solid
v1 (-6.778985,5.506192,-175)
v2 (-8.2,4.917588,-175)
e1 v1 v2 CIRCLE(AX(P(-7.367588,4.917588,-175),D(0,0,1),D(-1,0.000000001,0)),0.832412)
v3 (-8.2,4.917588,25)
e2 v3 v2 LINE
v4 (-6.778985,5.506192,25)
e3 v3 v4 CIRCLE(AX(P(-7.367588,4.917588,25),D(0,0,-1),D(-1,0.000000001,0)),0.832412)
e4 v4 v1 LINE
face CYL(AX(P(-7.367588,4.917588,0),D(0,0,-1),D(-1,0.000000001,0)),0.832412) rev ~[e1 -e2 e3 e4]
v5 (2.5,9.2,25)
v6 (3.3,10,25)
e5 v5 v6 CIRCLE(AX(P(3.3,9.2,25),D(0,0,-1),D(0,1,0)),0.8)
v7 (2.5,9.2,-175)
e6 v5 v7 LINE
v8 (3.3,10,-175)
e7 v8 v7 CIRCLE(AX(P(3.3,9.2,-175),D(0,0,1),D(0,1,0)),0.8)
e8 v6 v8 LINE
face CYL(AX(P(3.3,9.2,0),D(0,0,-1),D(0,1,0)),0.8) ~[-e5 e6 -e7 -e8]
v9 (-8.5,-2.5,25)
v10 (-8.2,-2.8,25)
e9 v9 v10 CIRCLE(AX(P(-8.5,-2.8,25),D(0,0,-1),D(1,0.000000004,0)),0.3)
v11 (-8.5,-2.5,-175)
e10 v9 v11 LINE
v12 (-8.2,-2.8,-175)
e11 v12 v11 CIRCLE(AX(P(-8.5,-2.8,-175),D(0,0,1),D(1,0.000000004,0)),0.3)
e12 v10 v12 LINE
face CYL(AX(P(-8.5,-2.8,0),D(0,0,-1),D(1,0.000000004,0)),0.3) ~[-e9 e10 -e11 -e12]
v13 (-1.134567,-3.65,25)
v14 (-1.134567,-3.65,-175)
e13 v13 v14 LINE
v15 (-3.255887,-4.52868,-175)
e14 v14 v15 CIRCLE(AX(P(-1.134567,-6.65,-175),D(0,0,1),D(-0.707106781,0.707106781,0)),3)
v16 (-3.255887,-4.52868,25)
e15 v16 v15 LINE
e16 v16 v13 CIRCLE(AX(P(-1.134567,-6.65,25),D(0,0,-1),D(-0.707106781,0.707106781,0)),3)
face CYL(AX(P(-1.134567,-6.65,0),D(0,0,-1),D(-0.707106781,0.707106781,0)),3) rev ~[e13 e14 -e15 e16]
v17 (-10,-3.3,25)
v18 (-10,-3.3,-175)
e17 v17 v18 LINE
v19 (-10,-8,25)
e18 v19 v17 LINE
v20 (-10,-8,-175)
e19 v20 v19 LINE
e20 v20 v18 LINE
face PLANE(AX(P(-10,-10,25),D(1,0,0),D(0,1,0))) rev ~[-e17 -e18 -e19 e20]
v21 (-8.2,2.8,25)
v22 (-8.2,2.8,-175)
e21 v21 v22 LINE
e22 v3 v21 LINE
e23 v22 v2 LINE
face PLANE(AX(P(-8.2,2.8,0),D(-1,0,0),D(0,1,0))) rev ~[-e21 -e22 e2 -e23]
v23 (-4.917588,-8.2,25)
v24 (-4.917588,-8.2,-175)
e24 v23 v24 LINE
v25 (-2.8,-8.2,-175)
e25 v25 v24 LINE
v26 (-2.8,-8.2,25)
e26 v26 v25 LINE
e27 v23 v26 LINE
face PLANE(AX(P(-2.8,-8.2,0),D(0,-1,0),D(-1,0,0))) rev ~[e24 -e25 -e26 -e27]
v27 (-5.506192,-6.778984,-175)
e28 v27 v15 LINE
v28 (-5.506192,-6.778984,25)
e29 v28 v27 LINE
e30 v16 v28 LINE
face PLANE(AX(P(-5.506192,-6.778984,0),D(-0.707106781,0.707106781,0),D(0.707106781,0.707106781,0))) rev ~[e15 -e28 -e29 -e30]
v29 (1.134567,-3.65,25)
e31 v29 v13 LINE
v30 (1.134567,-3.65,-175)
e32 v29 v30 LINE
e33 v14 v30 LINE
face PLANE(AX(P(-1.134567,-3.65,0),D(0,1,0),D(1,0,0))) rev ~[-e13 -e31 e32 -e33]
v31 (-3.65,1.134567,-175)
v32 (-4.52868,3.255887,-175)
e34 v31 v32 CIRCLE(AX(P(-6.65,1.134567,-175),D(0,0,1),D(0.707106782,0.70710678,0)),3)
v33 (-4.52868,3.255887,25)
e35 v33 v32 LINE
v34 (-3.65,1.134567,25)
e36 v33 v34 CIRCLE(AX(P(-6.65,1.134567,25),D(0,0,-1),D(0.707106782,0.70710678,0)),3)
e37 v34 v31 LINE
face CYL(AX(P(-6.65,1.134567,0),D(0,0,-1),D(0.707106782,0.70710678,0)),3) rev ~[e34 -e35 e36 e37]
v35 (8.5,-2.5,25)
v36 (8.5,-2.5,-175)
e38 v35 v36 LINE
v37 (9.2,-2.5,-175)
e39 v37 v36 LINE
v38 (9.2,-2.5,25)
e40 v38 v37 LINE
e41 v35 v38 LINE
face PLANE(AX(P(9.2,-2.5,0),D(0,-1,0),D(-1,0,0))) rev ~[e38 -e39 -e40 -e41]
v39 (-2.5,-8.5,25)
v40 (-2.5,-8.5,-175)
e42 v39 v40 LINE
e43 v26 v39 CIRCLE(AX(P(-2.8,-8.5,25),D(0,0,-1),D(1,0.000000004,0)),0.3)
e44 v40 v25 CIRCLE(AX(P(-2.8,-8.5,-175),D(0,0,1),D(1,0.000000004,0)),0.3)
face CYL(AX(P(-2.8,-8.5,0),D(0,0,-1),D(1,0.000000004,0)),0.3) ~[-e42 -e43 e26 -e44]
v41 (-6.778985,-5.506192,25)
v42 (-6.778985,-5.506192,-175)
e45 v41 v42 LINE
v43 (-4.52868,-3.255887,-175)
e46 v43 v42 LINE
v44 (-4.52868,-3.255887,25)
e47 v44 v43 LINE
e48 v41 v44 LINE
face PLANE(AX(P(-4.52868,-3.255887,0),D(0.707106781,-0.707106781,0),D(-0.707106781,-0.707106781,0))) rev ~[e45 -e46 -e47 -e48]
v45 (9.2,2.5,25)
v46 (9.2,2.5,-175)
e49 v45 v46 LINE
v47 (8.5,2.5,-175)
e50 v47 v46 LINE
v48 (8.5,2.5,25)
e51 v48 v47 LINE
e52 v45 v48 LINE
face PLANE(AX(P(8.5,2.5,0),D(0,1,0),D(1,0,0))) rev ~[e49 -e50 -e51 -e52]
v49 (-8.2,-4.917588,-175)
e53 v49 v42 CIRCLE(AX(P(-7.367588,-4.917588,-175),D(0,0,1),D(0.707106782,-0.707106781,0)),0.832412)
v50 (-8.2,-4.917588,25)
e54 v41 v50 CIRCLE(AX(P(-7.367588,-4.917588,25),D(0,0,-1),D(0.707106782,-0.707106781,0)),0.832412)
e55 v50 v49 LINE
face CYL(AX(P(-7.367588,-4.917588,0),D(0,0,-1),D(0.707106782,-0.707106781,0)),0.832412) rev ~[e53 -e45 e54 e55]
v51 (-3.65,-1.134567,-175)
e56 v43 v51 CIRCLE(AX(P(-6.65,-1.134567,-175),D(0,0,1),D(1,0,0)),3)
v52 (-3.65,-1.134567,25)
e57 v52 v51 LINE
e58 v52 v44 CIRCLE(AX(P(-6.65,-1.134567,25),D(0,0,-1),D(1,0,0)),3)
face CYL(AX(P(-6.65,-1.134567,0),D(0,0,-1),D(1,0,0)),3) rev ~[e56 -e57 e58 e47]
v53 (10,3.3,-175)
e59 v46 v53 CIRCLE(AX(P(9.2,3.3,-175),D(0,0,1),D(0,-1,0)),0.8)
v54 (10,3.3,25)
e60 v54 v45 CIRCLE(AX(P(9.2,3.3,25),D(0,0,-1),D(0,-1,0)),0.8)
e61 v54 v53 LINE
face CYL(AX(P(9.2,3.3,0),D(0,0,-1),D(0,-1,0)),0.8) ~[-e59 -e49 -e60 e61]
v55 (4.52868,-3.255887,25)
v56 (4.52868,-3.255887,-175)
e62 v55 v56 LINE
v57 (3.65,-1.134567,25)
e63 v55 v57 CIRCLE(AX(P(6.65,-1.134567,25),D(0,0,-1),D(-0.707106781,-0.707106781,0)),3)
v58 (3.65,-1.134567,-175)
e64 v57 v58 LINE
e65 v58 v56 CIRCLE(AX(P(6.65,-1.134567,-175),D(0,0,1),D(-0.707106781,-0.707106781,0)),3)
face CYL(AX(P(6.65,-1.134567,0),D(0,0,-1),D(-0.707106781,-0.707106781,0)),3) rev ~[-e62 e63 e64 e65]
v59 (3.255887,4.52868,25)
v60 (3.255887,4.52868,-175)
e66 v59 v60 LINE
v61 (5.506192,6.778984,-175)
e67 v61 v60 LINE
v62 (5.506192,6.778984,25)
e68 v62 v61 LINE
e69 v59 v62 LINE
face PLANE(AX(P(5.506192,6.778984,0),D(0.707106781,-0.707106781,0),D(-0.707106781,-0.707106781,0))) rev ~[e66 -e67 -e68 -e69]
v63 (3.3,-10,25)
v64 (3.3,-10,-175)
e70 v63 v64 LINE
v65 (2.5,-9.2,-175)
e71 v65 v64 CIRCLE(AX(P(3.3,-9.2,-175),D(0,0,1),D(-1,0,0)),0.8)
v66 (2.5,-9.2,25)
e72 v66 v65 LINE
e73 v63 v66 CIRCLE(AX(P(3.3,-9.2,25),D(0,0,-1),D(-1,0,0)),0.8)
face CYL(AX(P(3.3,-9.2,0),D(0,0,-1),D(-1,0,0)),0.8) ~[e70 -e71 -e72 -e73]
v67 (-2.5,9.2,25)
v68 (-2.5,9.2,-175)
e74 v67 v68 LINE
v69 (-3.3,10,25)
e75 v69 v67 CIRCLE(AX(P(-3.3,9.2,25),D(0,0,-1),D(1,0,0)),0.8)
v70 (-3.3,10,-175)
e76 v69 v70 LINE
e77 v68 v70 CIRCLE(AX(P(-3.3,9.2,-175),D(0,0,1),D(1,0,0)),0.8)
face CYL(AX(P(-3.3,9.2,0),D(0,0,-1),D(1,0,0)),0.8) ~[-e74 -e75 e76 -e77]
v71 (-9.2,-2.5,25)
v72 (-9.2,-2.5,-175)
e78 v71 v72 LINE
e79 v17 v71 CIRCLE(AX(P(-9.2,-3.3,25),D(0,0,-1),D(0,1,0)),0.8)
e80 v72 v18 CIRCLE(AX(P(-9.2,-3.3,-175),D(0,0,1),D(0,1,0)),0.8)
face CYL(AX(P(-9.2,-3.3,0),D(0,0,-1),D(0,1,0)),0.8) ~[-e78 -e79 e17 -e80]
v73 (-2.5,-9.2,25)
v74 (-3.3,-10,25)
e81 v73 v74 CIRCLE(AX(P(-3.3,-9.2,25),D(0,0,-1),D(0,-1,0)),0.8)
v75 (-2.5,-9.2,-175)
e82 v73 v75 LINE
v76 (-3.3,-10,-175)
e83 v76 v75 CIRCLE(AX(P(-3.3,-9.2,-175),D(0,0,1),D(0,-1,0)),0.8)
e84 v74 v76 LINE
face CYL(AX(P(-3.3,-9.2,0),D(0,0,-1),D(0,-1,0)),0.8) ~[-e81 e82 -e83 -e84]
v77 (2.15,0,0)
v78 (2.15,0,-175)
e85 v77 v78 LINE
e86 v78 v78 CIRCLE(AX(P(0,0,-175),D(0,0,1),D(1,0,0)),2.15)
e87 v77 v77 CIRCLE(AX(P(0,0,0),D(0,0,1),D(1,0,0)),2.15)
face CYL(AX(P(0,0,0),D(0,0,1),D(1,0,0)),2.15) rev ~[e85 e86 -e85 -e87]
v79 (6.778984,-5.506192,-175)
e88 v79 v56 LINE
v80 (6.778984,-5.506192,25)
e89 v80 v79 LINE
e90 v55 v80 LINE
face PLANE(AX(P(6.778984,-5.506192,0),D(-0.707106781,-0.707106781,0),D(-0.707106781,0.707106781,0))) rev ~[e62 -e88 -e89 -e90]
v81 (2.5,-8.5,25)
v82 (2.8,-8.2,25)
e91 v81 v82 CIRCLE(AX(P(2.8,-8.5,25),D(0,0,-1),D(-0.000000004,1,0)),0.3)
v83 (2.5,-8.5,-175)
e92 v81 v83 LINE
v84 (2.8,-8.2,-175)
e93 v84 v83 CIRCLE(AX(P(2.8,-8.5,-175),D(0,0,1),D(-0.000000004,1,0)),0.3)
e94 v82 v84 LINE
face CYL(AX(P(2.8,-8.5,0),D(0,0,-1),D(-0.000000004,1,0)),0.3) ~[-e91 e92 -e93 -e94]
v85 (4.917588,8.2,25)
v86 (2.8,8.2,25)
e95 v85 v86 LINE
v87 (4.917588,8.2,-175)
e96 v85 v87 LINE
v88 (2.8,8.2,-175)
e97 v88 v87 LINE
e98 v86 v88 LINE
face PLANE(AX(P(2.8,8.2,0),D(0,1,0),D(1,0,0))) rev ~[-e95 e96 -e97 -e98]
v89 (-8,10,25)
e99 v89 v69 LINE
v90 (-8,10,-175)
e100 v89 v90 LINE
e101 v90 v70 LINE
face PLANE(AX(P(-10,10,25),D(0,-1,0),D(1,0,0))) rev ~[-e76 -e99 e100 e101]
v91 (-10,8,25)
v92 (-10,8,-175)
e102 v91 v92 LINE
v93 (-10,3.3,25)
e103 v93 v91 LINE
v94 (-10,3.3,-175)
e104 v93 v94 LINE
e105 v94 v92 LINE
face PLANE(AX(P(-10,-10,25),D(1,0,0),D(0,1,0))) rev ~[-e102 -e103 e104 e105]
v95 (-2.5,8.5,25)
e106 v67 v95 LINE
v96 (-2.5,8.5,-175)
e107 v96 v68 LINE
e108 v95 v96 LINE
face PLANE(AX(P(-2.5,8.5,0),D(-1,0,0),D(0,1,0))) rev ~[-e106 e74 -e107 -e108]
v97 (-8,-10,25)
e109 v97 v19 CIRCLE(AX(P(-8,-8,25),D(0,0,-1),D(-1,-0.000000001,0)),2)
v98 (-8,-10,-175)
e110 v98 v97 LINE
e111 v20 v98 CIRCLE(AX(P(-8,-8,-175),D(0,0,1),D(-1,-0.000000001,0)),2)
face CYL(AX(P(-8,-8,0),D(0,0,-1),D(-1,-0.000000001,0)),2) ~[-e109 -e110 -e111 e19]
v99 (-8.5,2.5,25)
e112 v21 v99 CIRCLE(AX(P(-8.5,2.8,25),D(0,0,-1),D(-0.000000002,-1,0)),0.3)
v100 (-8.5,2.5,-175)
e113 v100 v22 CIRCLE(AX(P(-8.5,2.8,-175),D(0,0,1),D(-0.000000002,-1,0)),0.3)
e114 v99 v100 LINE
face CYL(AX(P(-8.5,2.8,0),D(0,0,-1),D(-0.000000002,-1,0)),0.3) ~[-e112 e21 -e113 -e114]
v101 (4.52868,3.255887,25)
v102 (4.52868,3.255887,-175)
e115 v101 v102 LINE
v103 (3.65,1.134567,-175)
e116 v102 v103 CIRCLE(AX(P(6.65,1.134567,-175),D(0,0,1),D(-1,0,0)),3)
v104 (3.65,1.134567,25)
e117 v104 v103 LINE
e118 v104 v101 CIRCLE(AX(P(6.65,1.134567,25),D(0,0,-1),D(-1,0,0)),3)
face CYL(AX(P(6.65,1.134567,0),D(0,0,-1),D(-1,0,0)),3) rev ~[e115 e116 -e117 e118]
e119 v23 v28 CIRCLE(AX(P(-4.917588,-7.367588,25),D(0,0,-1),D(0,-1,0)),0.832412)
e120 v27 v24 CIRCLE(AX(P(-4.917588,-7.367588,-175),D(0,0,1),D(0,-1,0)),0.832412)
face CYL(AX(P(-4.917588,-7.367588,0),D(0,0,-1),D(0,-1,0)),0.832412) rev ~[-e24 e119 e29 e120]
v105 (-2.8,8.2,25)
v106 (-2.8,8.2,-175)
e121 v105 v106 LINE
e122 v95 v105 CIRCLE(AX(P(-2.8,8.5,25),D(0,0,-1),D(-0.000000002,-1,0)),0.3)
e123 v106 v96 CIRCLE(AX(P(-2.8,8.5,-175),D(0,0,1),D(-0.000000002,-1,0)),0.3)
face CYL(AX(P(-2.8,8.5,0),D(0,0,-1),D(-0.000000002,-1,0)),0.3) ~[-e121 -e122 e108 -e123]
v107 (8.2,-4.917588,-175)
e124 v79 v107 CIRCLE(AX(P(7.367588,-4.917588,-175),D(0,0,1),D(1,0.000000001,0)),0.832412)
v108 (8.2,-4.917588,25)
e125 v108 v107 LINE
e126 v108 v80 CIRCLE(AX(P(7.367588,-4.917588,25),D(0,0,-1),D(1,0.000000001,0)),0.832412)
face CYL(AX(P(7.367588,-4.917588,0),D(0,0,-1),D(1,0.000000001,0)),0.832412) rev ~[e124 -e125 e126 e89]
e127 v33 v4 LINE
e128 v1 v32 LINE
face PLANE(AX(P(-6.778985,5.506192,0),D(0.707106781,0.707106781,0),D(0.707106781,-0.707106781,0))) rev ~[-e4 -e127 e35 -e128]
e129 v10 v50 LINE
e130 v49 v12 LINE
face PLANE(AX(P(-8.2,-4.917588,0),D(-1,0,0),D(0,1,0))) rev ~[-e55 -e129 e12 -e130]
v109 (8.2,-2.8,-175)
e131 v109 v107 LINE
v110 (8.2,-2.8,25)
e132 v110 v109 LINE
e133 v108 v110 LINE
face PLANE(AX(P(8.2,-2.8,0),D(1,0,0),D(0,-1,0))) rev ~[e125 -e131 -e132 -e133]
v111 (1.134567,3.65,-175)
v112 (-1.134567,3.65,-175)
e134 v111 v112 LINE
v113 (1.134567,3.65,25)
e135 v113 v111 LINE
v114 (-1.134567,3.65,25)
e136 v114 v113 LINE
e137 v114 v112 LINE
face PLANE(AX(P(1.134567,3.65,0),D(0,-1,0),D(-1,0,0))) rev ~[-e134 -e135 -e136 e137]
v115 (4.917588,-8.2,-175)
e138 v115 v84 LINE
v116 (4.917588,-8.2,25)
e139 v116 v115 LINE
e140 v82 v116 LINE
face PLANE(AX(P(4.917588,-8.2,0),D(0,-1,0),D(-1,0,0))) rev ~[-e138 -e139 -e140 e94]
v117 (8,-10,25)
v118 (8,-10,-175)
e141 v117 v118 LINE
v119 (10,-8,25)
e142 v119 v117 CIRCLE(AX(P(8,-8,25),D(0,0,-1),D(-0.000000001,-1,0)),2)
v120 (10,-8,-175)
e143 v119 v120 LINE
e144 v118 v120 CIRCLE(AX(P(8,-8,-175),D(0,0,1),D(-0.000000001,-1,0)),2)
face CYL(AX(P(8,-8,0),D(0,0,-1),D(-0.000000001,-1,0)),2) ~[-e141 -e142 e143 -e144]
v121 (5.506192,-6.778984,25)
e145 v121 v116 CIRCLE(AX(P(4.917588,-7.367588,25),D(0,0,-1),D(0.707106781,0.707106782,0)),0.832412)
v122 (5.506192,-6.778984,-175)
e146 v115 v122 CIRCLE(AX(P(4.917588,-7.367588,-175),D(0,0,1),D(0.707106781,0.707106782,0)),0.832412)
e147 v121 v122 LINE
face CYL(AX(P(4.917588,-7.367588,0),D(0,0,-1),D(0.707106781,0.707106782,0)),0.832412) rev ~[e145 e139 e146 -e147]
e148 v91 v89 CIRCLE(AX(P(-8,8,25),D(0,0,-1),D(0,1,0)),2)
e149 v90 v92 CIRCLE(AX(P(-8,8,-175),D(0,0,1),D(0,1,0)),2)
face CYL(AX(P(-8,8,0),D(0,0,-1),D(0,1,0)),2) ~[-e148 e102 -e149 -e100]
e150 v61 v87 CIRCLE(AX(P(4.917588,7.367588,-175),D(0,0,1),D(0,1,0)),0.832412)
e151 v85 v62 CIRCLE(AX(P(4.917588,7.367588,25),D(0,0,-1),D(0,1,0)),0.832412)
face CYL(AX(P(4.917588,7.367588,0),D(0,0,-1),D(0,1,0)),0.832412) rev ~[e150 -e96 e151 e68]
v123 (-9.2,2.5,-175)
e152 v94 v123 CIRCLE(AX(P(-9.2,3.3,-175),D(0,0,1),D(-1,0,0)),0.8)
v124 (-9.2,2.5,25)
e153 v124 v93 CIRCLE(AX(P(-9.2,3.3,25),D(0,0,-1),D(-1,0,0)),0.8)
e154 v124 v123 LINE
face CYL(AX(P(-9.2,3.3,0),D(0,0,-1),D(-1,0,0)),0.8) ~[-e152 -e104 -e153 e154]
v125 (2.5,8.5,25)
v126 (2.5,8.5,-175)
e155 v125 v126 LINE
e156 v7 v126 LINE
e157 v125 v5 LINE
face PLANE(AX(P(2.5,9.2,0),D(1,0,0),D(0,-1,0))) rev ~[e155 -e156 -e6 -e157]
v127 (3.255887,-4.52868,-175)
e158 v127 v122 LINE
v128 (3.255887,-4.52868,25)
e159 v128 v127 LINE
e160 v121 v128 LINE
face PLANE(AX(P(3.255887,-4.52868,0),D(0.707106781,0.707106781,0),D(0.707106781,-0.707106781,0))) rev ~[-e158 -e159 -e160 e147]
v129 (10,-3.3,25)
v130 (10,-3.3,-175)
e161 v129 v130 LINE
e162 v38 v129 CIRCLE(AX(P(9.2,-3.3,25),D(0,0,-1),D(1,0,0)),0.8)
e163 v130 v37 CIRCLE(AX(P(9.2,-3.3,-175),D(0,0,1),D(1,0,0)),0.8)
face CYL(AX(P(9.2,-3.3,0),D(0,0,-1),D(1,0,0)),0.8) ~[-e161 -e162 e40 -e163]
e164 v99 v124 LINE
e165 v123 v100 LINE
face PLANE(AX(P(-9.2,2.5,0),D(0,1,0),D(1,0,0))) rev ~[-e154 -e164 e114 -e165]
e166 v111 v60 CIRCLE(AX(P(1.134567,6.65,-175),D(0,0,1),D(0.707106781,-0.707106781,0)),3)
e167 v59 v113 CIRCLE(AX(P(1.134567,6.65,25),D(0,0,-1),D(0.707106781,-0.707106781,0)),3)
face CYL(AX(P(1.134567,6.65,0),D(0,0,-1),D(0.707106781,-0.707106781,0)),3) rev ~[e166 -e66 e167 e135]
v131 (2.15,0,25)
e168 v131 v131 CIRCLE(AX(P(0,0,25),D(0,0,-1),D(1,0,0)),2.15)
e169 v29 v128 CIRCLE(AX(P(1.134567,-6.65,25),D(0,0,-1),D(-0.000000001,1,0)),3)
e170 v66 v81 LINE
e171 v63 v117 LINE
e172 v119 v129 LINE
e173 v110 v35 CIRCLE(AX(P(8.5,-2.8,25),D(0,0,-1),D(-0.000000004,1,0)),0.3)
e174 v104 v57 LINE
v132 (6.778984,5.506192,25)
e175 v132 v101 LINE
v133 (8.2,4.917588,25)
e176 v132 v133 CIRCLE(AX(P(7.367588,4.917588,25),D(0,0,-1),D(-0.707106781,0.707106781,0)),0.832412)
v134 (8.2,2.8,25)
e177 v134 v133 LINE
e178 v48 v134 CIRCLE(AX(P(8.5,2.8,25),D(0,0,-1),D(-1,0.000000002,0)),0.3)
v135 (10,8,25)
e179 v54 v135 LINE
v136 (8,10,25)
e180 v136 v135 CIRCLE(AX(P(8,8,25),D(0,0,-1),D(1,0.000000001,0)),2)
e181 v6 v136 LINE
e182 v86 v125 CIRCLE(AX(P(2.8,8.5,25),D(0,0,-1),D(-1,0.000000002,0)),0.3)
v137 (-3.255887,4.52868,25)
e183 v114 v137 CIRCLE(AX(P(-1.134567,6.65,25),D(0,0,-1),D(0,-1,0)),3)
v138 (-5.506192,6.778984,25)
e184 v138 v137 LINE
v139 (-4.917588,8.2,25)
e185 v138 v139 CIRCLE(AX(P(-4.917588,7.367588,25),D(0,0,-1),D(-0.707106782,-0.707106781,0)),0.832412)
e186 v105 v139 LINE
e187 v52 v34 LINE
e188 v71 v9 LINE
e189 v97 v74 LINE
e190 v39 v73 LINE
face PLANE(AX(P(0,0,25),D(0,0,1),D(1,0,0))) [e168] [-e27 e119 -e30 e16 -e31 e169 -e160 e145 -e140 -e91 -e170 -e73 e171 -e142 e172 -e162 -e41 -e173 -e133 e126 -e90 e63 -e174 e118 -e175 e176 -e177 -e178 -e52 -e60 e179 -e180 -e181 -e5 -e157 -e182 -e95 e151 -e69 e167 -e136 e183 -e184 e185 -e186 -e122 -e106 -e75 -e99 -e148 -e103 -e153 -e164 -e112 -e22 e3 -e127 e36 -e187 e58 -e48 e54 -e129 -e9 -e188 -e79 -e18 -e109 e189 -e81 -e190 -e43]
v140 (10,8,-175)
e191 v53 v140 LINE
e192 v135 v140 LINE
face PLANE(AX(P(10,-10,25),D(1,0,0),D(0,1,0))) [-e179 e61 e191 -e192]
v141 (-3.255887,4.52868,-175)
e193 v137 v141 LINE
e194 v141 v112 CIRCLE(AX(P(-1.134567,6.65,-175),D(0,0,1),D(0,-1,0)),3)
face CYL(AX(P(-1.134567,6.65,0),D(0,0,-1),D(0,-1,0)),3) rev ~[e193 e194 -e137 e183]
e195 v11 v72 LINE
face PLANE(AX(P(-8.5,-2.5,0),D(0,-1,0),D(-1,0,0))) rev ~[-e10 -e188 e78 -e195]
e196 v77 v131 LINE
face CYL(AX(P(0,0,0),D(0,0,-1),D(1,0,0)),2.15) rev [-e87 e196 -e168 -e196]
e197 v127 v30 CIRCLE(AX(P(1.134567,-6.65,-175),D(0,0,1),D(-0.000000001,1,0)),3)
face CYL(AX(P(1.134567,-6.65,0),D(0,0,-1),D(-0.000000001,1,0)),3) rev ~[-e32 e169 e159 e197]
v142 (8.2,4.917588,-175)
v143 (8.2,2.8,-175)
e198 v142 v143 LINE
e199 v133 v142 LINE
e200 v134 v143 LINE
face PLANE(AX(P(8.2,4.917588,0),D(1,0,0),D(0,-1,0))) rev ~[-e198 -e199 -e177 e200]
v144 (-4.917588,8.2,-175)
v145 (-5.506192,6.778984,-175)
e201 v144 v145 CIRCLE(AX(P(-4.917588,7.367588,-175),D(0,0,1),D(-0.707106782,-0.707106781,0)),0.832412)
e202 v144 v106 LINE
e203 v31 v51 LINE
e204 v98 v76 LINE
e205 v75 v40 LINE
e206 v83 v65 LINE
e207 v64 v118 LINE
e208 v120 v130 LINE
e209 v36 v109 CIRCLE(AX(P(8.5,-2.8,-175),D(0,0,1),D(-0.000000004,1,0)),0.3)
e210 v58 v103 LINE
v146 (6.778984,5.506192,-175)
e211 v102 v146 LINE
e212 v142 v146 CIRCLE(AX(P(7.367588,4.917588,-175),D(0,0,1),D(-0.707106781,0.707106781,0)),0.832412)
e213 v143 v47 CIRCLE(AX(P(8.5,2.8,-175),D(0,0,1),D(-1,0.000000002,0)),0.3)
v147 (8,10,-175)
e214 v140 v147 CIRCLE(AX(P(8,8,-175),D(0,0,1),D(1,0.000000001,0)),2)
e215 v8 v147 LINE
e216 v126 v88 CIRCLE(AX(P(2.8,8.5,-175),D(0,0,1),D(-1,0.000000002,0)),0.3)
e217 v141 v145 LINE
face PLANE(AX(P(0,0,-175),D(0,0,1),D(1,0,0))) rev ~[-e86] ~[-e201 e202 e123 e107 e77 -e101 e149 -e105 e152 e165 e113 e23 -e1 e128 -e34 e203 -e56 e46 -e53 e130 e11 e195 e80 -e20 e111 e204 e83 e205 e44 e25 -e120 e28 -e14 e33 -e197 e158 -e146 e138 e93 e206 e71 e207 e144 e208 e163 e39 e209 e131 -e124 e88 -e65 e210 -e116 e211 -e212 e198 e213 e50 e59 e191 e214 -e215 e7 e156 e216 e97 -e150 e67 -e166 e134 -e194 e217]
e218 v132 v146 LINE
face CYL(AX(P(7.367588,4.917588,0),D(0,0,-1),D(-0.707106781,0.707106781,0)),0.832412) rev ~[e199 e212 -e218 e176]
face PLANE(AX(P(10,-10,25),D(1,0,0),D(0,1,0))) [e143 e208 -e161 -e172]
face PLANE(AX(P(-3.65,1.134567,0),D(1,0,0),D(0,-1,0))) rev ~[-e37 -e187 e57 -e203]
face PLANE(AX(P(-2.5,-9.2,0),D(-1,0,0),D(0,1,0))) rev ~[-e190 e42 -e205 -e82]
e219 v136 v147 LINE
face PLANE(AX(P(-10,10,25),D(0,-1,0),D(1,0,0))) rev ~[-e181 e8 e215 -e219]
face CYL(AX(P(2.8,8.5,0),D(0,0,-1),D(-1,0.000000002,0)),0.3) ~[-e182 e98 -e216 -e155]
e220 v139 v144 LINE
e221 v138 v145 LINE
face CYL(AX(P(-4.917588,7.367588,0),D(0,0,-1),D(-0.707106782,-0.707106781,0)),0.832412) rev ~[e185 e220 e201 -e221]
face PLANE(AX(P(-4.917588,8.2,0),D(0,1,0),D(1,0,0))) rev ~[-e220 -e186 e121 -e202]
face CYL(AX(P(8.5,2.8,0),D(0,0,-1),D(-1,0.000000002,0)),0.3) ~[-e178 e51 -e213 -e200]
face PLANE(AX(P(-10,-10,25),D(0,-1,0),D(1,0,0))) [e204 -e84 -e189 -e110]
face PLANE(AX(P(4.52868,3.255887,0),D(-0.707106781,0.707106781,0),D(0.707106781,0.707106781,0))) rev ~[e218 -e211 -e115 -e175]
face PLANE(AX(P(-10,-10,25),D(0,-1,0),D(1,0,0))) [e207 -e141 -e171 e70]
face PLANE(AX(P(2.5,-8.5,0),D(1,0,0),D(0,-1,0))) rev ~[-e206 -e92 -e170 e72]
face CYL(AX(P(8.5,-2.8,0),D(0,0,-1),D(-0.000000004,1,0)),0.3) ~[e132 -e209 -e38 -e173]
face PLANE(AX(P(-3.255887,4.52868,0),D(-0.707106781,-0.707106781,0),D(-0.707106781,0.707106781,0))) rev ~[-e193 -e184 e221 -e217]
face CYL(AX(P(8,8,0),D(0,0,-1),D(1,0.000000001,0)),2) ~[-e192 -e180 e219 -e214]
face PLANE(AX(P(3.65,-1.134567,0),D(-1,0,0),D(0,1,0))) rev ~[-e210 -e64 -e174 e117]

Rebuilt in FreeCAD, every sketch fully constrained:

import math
import FreeCAD as App
import Part
import Sketcher
Q = App.Units.Quantity


def add_polygon(sketch, points):
    """Adds a closed chain of lines whose ends are joined by coincident constraints."""
    first, n = sketch.GeometryCount, len(points)
    for a, b in zip(points, points[1:] + points[:1]):
        sketch.addGeometry(Part.LineSegment(App.Vector(*a, 0), App.Vector(*b, 0)), False)
    for i in range(n):
        sketch.addConstraint(Sketcher.Constraint("Coincident", first + i, 2, first + (i + 1) % n, 1))

doc = App.newDocument("Part")
body = doc.addObject("PartDesign::Body", "Body")

# Sketch on XY plane
sketch1 = doc.addObject("Sketcher::SketchObject", "Sketch")
body.addObject(sketch1)
sketch1.AttachmentSupport = (doc.XY_Plane, [""])
sketch1.MapMode = "FlatFace"
sketch1.AttachmentOffset = App.Placement(App.Vector(0, 0, 25), App.Rotation())
add_polygon(sketch1, [(-10, 10), (-10, -10), (10, -10), (10, 10)])  # lines 0-3
sketch1.addConstraint(Sketcher.Constraint("Vertical", 0))
sketch1.addConstraint(Sketcher.Constraint("Horizontal", 1))
sketch1.addConstraint(Sketcher.Constraint("Vertical", 2))
sketch1.addConstraint(Sketcher.Constraint("Horizontal", 3))
sketch1.addConstraint(Sketcher.Constraint("Symmetric", 0, 2, 2, 2, -1, 1))
sketch1.addConstraint(Sketcher.Constraint("Equal", 3, 0))
sketch1.addConstraint(Sketcher.Constraint("DistanceX", 1, 1, 1, 2, Q("20 mm")))
pad1 = doc.addObject("PartDesign::Pad", "Pad")
body.addObject(pad1)
pad1.Profile = sketch1
pad1.Length = 200
pad1.Reversed = True

# Sketch on XY plane
sketch2 = doc.addObject("Sketcher::SketchObject", "Sketch001")
body.addObject(sketch2)
sketch2.AttachmentSupport = (doc.XY_Plane, [""])
sketch2.MapMode = "FlatFace"
add_polygon(sketch2, [(-31.2, 31.2), (-31.2, -31.2), (31.2, -31.2), (31.2, 31.2)])  # lines 0-3
sketch2.addGeometry(Part.LineSegment(App.Vector(2.8, -8.2, 0), App.Vector(4.92, -8.2, 0)), False)  # 4
sketch2.addGeometry(Part.ArcOfCircle(Part.Circle(App.Vector(4.92, -7.37, 0), App.Vector(0, 0, 1), 0.83), math.radians(-90), math.radians(45)), False)  # 5
sketch2.addGeometry(Part.LineSegment(App.Vector(5.51, -6.78, 0), App.Vector(3.26, -4.53, 0)), False)  # 6
sketch2.addGeometry(Part.ArcOfCircle(Part.Circle(App.Vector(1.13, -6.65, 0), App.Vector(0, 0, 1), 3), math.radians(45), math.radians(90)), False)  # 7
sketch2.addGeometry(Part.LineSegment(App.Vector(1.13, -3.65, 0), App.Vector(-1.13, -3.65, 0)), False)  # 8
sketch2.addGeometry(Part.ArcOfCircle(Part.Circle(App.Vector(-1.13, -6.65, 0), App.Vector(0, 0, 1), 3), math.radians(90), math.radians(135)), False)  # 9
sketch2.addGeometry(Part.LineSegment(App.Vector(-3.26, -4.53, 0), App.Vector(-5.51, -6.78, 0)), False)  # 10
sketch2.addGeometry(Part.ArcOfCircle(Part.Circle(App.Vector(-4.92, -7.37, 0), App.Vector(0, 0, 1), 0.83), math.radians(135), math.radians(270)), False)  # 11
sketch2.addGeometry(Part.LineSegment(App.Vector(-4.92, -8.2, 0), App.Vector(-2.8, -8.2, 0)), False)  # 12
sketch2.addGeometry(Part.ArcOfCircle(Part.Circle(App.Vector(-2.8, -8.5, 0), App.Vector(0, 0, 1), 0.3), math.radians(0), math.radians(90)), False)  # 13
sketch2.addGeometry(Part.LineSegment(App.Vector(-2.5, -8.5, 0), App.Vector(-2.5, -9.2, 0)), False)  # 14
sketch2.addGeometry(Part.ArcOfCircle(Part.Circle(App.Vector(-3.3, -9.2, 0), App.Vector(0, 0, 1), 0.8), math.radians(-90), math.radians(0)), False)  # 15
sketch2.addGeometry(Part.LineSegment(App.Vector(-3.3, -10, 0), App.Vector(-8, -10, 0)), False)  # 16
sketch2.addGeometry(Part.ArcOfCircle(Part.Circle(App.Vector(-8, -8, 0), App.Vector(0, 0, 1), 2), math.radians(-180), math.radians(-90)), False)  # 17
sketch2.addGeometry(Part.LineSegment(App.Vector(-10, -8, 0), App.Vector(-10, -3.3, 0)), False)  # 18
sketch2.addGeometry(Part.ArcOfCircle(Part.Circle(App.Vector(-9.2, -3.3, 0), App.Vector(0, 0, 1), 0.8), math.radians(90), math.radians(180)), False)  # 19
sketch2.addGeometry(Part.LineSegment(App.Vector(-9.2, -2.5, 0), App.Vector(-8.5, -2.5, 0)), False)  # 20
sketch2.addGeometry(Part.ArcOfCircle(Part.Circle(App.Vector(-8.5, -2.8, 0), App.Vector(0, 0, 1), 0.3), math.radians(0), math.radians(90)), False)  # 21
sketch2.addGeometry(Part.LineSegment(App.Vector(-8.2, -2.8, 0), App.Vector(-8.2, -4.92, 0)), False)  # 22
sketch2.addGeometry(Part.ArcOfCircle(Part.Circle(App.Vector(-7.37, -4.92, 0), App.Vector(0, 0, 1), 0.83), math.radians(180), math.radians(315)), False)  # 23
sketch2.addGeometry(Part.LineSegment(App.Vector(-6.78, -5.51, 0), App.Vector(-4.53, -3.26, 0)), False)  # 24
sketch2.addGeometry(Part.ArcOfCircle(Part.Circle(App.Vector(-6.65, -1.13, 0), App.Vector(0, 0, 1), 3), math.radians(-45), math.radians(0)), False)  # 25
sketch2.addGeometry(Part.LineSegment(App.Vector(-3.65, -1.13, 0), App.Vector(-3.65, 1.13, 0)), False)  # 26
sketch2.addGeometry(Part.ArcOfCircle(Part.Circle(App.Vector(-6.65, 1.13, 0), App.Vector(0, 0, 1), 3), math.radians(0), math.radians(45)), False)  # 27
sketch2.addGeometry(Part.LineSegment(App.Vector(-4.53, 3.26, 0), App.Vector(-6.78, 5.51, 0)), False)  # 28
sketch2.addGeometry(Part.ArcOfCircle(Part.Circle(App.Vector(-7.37, 4.92, 0), App.Vector(0, 0, 1), 0.83), math.radians(45), math.radians(180)), False)  # 29
sketch2.addGeometry(Part.LineSegment(App.Vector(-8.2, 4.92, 0), App.Vector(-8.2, 2.8, 0)), False)  # 30
sketch2.addGeometry(Part.ArcOfCircle(Part.Circle(App.Vector(-8.5, 2.8, 0), App.Vector(0, 0, 1), 0.3), math.radians(-90), math.radians(0)), False)  # 31
sketch2.addGeometry(Part.LineSegment(App.Vector(-8.5, 2.5, 0), App.Vector(-9.2, 2.5, 0)), False)  # 32
sketch2.addGeometry(Part.ArcOfCircle(Part.Circle(App.Vector(-9.2, 3.3, 0), App.Vector(0, 0, 1), 0.8), math.radians(180), math.radians(270)), False)  # 33
sketch2.addGeometry(Part.LineSegment(App.Vector(-10, 3.3, 0), App.Vector(-10, 8, 0)), False)  # 34
sketch2.addGeometry(Part.ArcOfCircle(Part.Circle(App.Vector(-8, 8, 0), App.Vector(0, 0, 1), 2), math.radians(90), math.radians(180)), False)  # 35
sketch2.addGeometry(Part.LineSegment(App.Vector(-8, 10, 0), App.Vector(-3.3, 10, 0)), False)  # 36
sketch2.addGeometry(Part.ArcOfCircle(Part.Circle(App.Vector(-3.3, 9.2, 0), App.Vector(0, 0, 1), 0.8), math.radians(0), math.radians(90)), False)  # 37
sketch2.addGeometry(Part.LineSegment(App.Vector(-2.5, 9.2, 0), App.Vector(-2.5, 8.5, 0)), False)  # 38
sketch2.addGeometry(Part.ArcOfCircle(Part.Circle(App.Vector(-2.8, 8.5, 0), App.Vector(0, 0, 1), 0.3), math.radians(-90), math.radians(0)), False)  # 39
sketch2.addGeometry(Part.LineSegment(App.Vector(-2.8, 8.2, 0), App.Vector(-4.92, 8.2, 0)), False)  # 40
sketch2.addGeometry(Part.ArcOfCircle(Part.Circle(App.Vector(-4.92, 7.37, 0), App.Vector(0, 0, 1), 0.83), math.radians(90), math.radians(225)), False)  # 41
sketch2.addGeometry(Part.LineSegment(App.Vector(-5.51, 6.78, 0), App.Vector(-3.26, 4.53, 0)), False)  # 42
sketch2.addGeometry(Part.ArcOfCircle(Part.Circle(App.Vector(-1.13, 6.65, 0), App.Vector(0, 0, 1), 3), math.radians(-135), math.radians(-90)), False)  # 43
sketch2.addGeometry(Part.LineSegment(App.Vector(-1.13, 3.65, 0), App.Vector(1.13, 3.65, 0)), False)  # 44
sketch2.addGeometry(Part.ArcOfCircle(Part.Circle(App.Vector(1.13, 6.65, 0), App.Vector(0, 0, 1), 3), math.radians(-90), math.radians(-45)), False)  # 45
sketch2.addGeometry(Part.LineSegment(App.Vector(3.26, 4.53, 0), App.Vector(5.51, 6.78, 0)), False)  # 46
sketch2.addGeometry(Part.ArcOfCircle(Part.Circle(App.Vector(4.92, 7.37, 0), App.Vector(0, 0, 1), 0.83), math.radians(-45), math.radians(90)), False)  # 47
sketch2.addGeometry(Part.LineSegment(App.Vector(4.92, 8.2, 0), App.Vector(2.8, 8.2, 0)), False)  # 48
sketch2.addGeometry(Part.ArcOfCircle(Part.Circle(App.Vector(2.8, 8.5, 0), App.Vector(0, 0, 1), 0.3), math.radians(180), math.radians(270)), False)  # 49
sketch2.addGeometry(Part.LineSegment(App.Vector(2.5, 8.5, 0), App.Vector(2.5, 9.2, 0)), False)  # 50
sketch2.addGeometry(Part.ArcOfCircle(Part.Circle(App.Vector(3.3, 9.2, 0), App.Vector(0, 0, 1), 0.8), math.radians(90), math.radians(180)), False)  # 51
sketch2.addGeometry(Part.LineSegment(App.Vector(3.3, 10, 0), App.Vector(8, 10, 0)), False)  # 52
sketch2.addGeometry(Part.ArcOfCircle(Part.Circle(App.Vector(8, 8, 0), App.Vector(0, 0, 1), 2), math.radians(0), math.radians(90)), False)  # 53
sketch2.addGeometry(Part.LineSegment(App.Vector(10, 8, 0), App.Vector(10, 3.3, 0)), False)  # 54
sketch2.addGeometry(Part.ArcOfCircle(Part.Circle(App.Vector(9.2, 3.3, 0), App.Vector(0, 0, 1), 0.8), math.radians(-90), math.radians(0)), False)  # 55
sketch2.addGeometry(Part.LineSegment(App.Vector(9.2, 2.5, 0), App.Vector(8.5, 2.5, 0)), False)  # 56
sketch2.addGeometry(Part.ArcOfCircle(Part.Circle(App.Vector(8.5, 2.8, 0), App.Vector(0, 0, 1), 0.3), math.radians(180), math.radians(270)), False)  # 57
sketch2.addGeometry(Part.LineSegment(App.Vector(8.2, 2.8, 0), App.Vector(8.2, 4.92, 0)), False)  # 58
sketch2.addGeometry(Part.ArcOfCircle(Part.Circle(App.Vector(7.37, 4.92, 0), App.Vector(0, 0, 1), 0.83), math.radians(0), math.radians(135)), False)  # 59
sketch2.addGeometry(Part.LineSegment(App.Vector(6.78, 5.51, 0), App.Vector(4.53, 3.26, 0)), False)  # 60
sketch2.addGeometry(Part.ArcOfCircle(Part.Circle(App.Vector(6.65, 1.13, 0), App.Vector(0, 0, 1), 3), math.radians(135), math.radians(180)), False)  # 61
sketch2.addGeometry(Part.LineSegment(App.Vector(3.65, 1.13, 0), App.Vector(3.65, -1.13, 0)), False)  # 62
sketch2.addGeometry(Part.ArcOfCircle(Part.Circle(App.Vector(6.65, -1.13, 0), App.Vector(0, 0, 1), 3), math.radians(180), math.radians(225)), False)  # 63
sketch2.addGeometry(Part.LineSegment(App.Vector(4.53, -3.26, 0), App.Vector(6.78, -5.51, 0)), False)  # 64
sketch2.addGeometry(Part.ArcOfCircle(Part.Circle(App.Vector(7.37, -4.92, 0), App.Vector(0, 0, 1), 0.83), math.radians(-135), math.radians(0)), False)  # 65
sketch2.addGeometry(Part.LineSegment(App.Vector(8.2, -4.92, 0), App.Vector(8.2, -2.8, 0)), False)  # 66
sketch2.addGeometry(Part.ArcOfCircle(Part.Circle(App.Vector(8.5, -2.8, 0), App.Vector(0, 0, 1), 0.3), math.radians(90), math.radians(180)), False)  # 67
sketch2.addGeometry(Part.LineSegment(App.Vector(8.5, -2.5, 0), App.Vector(9.2, -2.5, 0)), False)  # 68
sketch2.addGeometry(Part.ArcOfCircle(Part.Circle(App.Vector(9.2, -3.3, 0), App.Vector(0, 0, 1), 0.8), math.radians(0), math.radians(90)), False)  # 69
sketch2.addGeometry(Part.LineSegment(App.Vector(10, -3.3, 0), App.Vector(10, -8, 0)), False)  # 70
sketch2.addGeometry(Part.ArcOfCircle(Part.Circle(App.Vector(8, -8, 0), App.Vector(0, 0, 1), 2), math.radians(-90), math.radians(0)), False)  # 71
sketch2.addGeometry(Part.LineSegment(App.Vector(8, -10, 0), App.Vector(3.3, -10, 0)), False)  # 72
sketch2.addGeometry(Part.ArcOfCircle(Part.Circle(App.Vector(3.3, -9.2, 0), App.Vector(0, 0, 1), 0.8), math.radians(180), math.radians(270)), False)  # 73
sketch2.addGeometry(Part.LineSegment(App.Vector(2.5, -9.2, 0), App.Vector(2.5, -8.5, 0)), False)  # 74
sketch2.addGeometry(Part.ArcOfCircle(Part.Circle(App.Vector(2.8, -8.5, 0), App.Vector(0, 0, 1), 0.3), math.radians(90), math.radians(180)), False)  # 75
sketch2.addGeometry(Part.Circle(App.Vector(0, 0, 0), App.Vector(0, 0, 1), 2.15), False)  # 76
sketch2.addConstraint(Sketcher.Constraint("Tangent", 4, 2, 5, 1))
sketch2.addConstraint(Sketcher.Constraint("Tangent", 5, 2, 6, 1))
sketch2.addConstraint(Sketcher.Constraint("Tangent", 6, 2, 7, 1))
sketch2.addConstraint(Sketcher.Constraint("Tangent", 7, 2, 8, 1))
sketch2.addConstraint(Sketcher.Constraint("Tangent", 8, 2, 9, 1))
sketch2.addConstraint(Sketcher.Constraint("Tangent", 9, 2, 10, 1))
sketch2.addConstraint(Sketcher.Constraint("Tangent", 10, 2, 11, 1))
sketch2.addConstraint(Sketcher.Constraint("Tangent", 11, 2, 12, 1))
sketch2.addConstraint(Sketcher.Constraint("Tangent", 12, 2, 13, 2))
sketch2.addConstraint(Sketcher.Constraint("Tangent", 13, 1, 14, 1))
sketch2.addConstraint(Sketcher.Constraint("Tangent", 14, 2, 15, 2))
sketch2.addConstraint(Sketcher.Constraint("Tangent", 15, 1, 16, 1))
sketch2.addConstraint(Sketcher.Constraint("Tangent", 16, 2, 17, 2))
sketch2.addConstraint(Sketcher.Constraint("Tangent", 17, 1, 18, 1))
sketch2.addConstraint(Sketcher.Constraint("Tangent", 18, 2, 19, 2))
sketch2.addConstraint(Sketcher.Constraint("Tangent", 19, 1, 20, 1))
sketch2.addConstraint(Sketcher.Constraint("Tangent", 20, 2, 21, 2))
sketch2.addConstraint(Sketcher.Constraint("Tangent", 21, 1, 22, 1))
sketch2.addConstraint(Sketcher.Constraint("Tangent", 22, 2, 23, 1))
sketch2.addConstraint(Sketcher.Constraint("Tangent", 23, 2, 24, 1))
sketch2.addConstraint(Sketcher.Constraint("Tangent", 24, 2, 25, 1))
sketch2.addConstraint(Sketcher.Constraint("Tangent", 25, 2, 26, 1))
sketch2.addConstraint(Sketcher.Constraint("Tangent", 26, 2, 27, 1))
sketch2.addConstraint(Sketcher.Constraint("Tangent", 27, 2, 28, 1))
sketch2.addConstraint(Sketcher.Constraint("Tangent", 28, 2, 29, 1))
sketch2.addConstraint(Sketcher.Constraint("Tangent", 29, 2, 30, 1))
sketch2.addConstraint(Sketcher.Constraint("Tangent", 30, 2, 31, 2))
sketch2.addConstraint(Sketcher.Constraint("Tangent", 31, 1, 32, 1))
sketch2.addConstraint(Sketcher.Constraint("Tangent", 32, 2, 33, 2))
sketch2.addConstraint(Sketcher.Constraint("Tangent", 33, 1, 34, 1))
sketch2.addConstraint(Sketcher.Constraint("Tangent", 34, 2, 35, 2))
sketch2.addConstraint(Sketcher.Constraint("Tangent", 35, 1, 36, 1))
sketch2.addConstraint(Sketcher.Constraint("Tangent", 36, 2, 37, 2))
sketch2.addConstraint(Sketcher.Constraint("Tangent", 37, 1, 38, 1))
sketch2.addConstraint(Sketcher.Constraint("Tangent", 38, 2, 39, 2))
sketch2.addConstraint(Sketcher.Constraint("Tangent", 39, 1, 40, 1))
sketch2.addConstraint(Sketcher.Constraint("Tangent", 40, 2, 41, 1))
sketch2.addConstraint(Sketcher.Constraint("Tangent", 41, 2, 42, 1))
sketch2.addConstraint(Sketcher.Constraint("Tangent", 42, 2, 43, 1))
sketch2.addConstraint(Sketcher.Constraint("Tangent", 43, 2, 44, 1))
sketch2.addConstraint(Sketcher.Constraint("Tangent", 44, 2, 45, 1))
sketch2.addConstraint(Sketcher.Constraint("Tangent", 45, 2, 46, 1))
sketch2.addConstraint(Sketcher.Constraint("Tangent", 46, 2, 47, 1))
sketch2.addConstraint(Sketcher.Constraint("Tangent", 47, 2, 48, 1))
sketch2.addConstraint(Sketcher.Constraint("Tangent", 48, 2, 49, 2))
sketch2.addConstraint(Sketcher.Constraint("Tangent", 49, 1, 50, 1))
sketch2.addConstraint(Sketcher.Constraint("Tangent", 50, 2, 51, 2))
sketch2.addConstraint(Sketcher.Constraint("Tangent", 51, 1, 52, 1))
sketch2.addConstraint(Sketcher.Constraint("Tangent", 52, 2, 53, 2))
sketch2.addConstraint(Sketcher.Constraint("Tangent", 53, 1, 54, 1))
sketch2.addConstraint(Sketcher.Constraint("Tangent", 54, 2, 55, 2))
sketch2.addConstraint(Sketcher.Constraint("Tangent", 55, 1, 56, 1))
sketch2.addConstraint(Sketcher.Constraint("Tangent", 56, 2, 57, 2))
sketch2.addConstraint(Sketcher.Constraint("Tangent", 57, 1, 58, 1))
sketch2.addConstraint(Sketcher.Constraint("Tangent", 58, 2, 59, 1))
sketch2.addConstraint(Sketcher.Constraint("Tangent", 59, 2, 60, 1))
sketch2.addConstraint(Sketcher.Constraint("Tangent", 60, 2, 61, 1))
sketch2.addConstraint(Sketcher.Constraint("Tangent", 61, 2, 62, 1))
sketch2.addConstraint(Sketcher.Constraint("Tangent", 62, 2, 63, 1))
sketch2.addConstraint(Sketcher.Constraint("Tangent", 63, 2, 64, 1))
sketch2.addConstraint(Sketcher.Constraint("Tangent", 64, 2, 65, 1))
sketch2.addConstraint(Sketcher.Constraint("Tangent", 65, 2, 66, 1))
sketch2.addConstraint(Sketcher.Constraint("Tangent", 66, 2, 67, 2))
sketch2.addConstraint(Sketcher.Constraint("Tangent", 67, 1, 68, 1))
sketch2.addConstraint(Sketcher.Constraint("Tangent", 68, 2, 69, 2))
sketch2.addConstraint(Sketcher.Constraint("Tangent", 69, 1, 70, 1))
sketch2.addConstraint(Sketcher.Constraint("Tangent", 70, 2, 71, 2))
sketch2.addConstraint(Sketcher.Constraint("Tangent", 71, 1, 72, 1))
sketch2.addConstraint(Sketcher.Constraint("Tangent", 72, 2, 73, 2))
sketch2.addConstraint(Sketcher.Constraint("Tangent", 73, 1, 74, 1))
sketch2.addConstraint(Sketcher.Constraint("Tangent", 74, 2, 75, 2))
sketch2.addConstraint(Sketcher.Constraint("Tangent", 75, 1, 4, 1))
sketch2.addConstraint(Sketcher.Constraint("Vertical", 0))
sketch2.addConstraint(Sketcher.Constraint("Horizontal", 1))
sketch2.addConstraint(Sketcher.Constraint("Vertical", 2))
sketch2.addConstraint(Sketcher.Constraint("Horizontal", 3))
sketch2.addConstraint(Sketcher.Constraint("Horizontal", 4))
sketch2.addConstraint(Sketcher.Constraint("Horizontal", 8))
sketch2.addConstraint(Sketcher.Constraint("Horizontal", 12))
sketch2.addConstraint(Sketcher.Constraint("Vertical", 14))
sketch2.addConstraint(Sketcher.Constraint("Horizontal", 16))
sketch2.addConstraint(Sketcher.Constraint("Vertical", 18))
sketch2.addConstraint(Sketcher.Constraint("Horizontal", 20))
sketch2.addConstraint(Sketcher.Constraint("Vertical", 22))
sketch2.addConstraint(Sketcher.Constraint("Vertical", 26))
sketch2.addConstraint(Sketcher.Constraint("Vertical", 30))
sketch2.addConstraint(Sketcher.Constraint("Horizontal", 32))
sketch2.addConstraint(Sketcher.Constraint("Vertical", 34))
sketch2.addConstraint(Sketcher.Constraint("Horizontal", 36))
sketch2.addConstraint(Sketcher.Constraint("Vertical", 38))
sketch2.addConstraint(Sketcher.Constraint("Horizontal", 40))
sketch2.addConstraint(Sketcher.Constraint("Horizontal", 44))
sketch2.addConstraint(Sketcher.Constraint("Horizontal", 48))
sketch2.addConstraint(Sketcher.Constraint("Vertical", 50))
sketch2.addConstraint(Sketcher.Constraint("Horizontal", 52))
sketch2.addConstraint(Sketcher.Constraint("Vertical", 54))
sketch2.addConstraint(Sketcher.Constraint("Horizontal", 56))
sketch2.addConstraint(Sketcher.Constraint("Vertical", 58))
sketch2.addConstraint(Sketcher.Constraint("Vertical", 62))
sketch2.addConstraint(Sketcher.Constraint("Vertical", 66))
sketch2.addConstraint(Sketcher.Constraint("Horizontal", 68))
sketch2.addConstraint(Sketcher.Constraint("Vertical", 70))
sketch2.addConstraint(Sketcher.Constraint("Horizontal", 72))
sketch2.addConstraint(Sketcher.Constraint("Vertical", 74))
sketch2.addConstraint(Sketcher.Constraint("Coincident", 76, 3, -1, 1))
sketch2.addConstraint(Sketcher.Constraint("Equal", 7, 9))
sketch2.addConstraint(Sketcher.Constraint("Equal", 5, 11))
sketch2.addConstraint(Sketcher.Constraint("Equal", 15, 19))
sketch2.addConstraint(Sketcher.Constraint("Equal", 13, 21))
sketch2.addConstraint(Sketcher.Constraint("Equal", 11, 23))
sketch2.addConstraint(Sketcher.Constraint("Equal", 9, 25))
sketch2.addConstraint(Sketcher.Constraint("Equal", 25, 27))
sketch2.addConstraint(Sketcher.Constraint("Equal", 23, 29))
sketch2.addConstraint(Sketcher.Constraint("Equal", 21, 31))
sketch2.addConstraint(Sketcher.Constraint("Equal", 19, 33))
sketch2.addConstraint(Sketcher.Constraint("Equal", 17, 35))
sketch2.addConstraint(Sketcher.Constraint("Equal", 33, 37))
sketch2.addConstraint(Sketcher.Constraint("Equal", 31, 39))
sketch2.addConstraint(Sketcher.Constraint("Equal", 29, 41))
sketch2.addConstraint(Sketcher.Constraint("Equal", 27, 43))
sketch2.addConstraint(Sketcher.Constraint("Equal", 43, 45))
sketch2.addConstraint(Sketcher.Constraint("Equal", 41, 47))
sketch2.addConstraint(Sketcher.Constraint("Equal", 39, 49))
sketch2.addConstraint(Sketcher.Constraint("Equal", 37, 51))
sketch2.addConstraint(Sketcher.Constraint("Equal", 35, 53))
sketch2.addConstraint(Sketcher.Constraint("Equal", 51, 55))
sketch2.addConstraint(Sketcher.Constraint("Equal", 49, 57))
sketch2.addConstraint(Sketcher.Constraint("Equal", 47, 59))
sketch2.addConstraint(Sketcher.Constraint("Equal", 45, 61))
sketch2.addConstraint(Sketcher.Constraint("Equal", 61, 63))
sketch2.addConstraint(Sketcher.Constraint("Equal", 59, 65))
sketch2.addConstraint(Sketcher.Constraint("Equal", 57, 67))
sketch2.addConstraint(Sketcher.Constraint("Equal", 55, 69))
sketch2.addConstraint(Sketcher.Constraint("Equal", 53, 71))
sketch2.addConstraint(Sketcher.Constraint("Equal", 69, 73))
sketch2.addConstraint(Sketcher.Constraint("Equal", 67, 75))
sketch2.addConstraint(Sketcher.Constraint("Symmetric", 5, 3, 41, 3, -1, 1))
sketch2.addConstraint(Sketcher.Constraint("Symmetric", 7, 3, 43, 3, -1, 1))
sketch2.addConstraint(Sketcher.Constraint("Symmetric", 11, 3, 47, 3, -1, 1))
sketch2.addConstraint(Sketcher.Constraint("Symmetric", 15, 3, 51, 3, -1, 1))
sketch2.addConstraint(Sketcher.Constraint("Symmetric", 19, 3, 55, 3, -1, 1))
sketch2.addConstraint(Sketcher.Constraint("Symmetric", 23, 3, 59, 3, -1, 1))
sketch2.addConstraint(Sketcher.Constraint("Symmetric", 25, 3, 61, 3, -1, 1))
sketch2.addConstraint(Sketcher.Constraint("Symmetric", 29, 3, 65, 3, -1, 1))
sketch2.addConstraint(Sketcher.Constraint("Symmetric", 33, 3, 69, 3, -1, 1))
sketch2.addConstraint(Sketcher.Constraint("Symmetric", 37, 3, 73, 3, -1, 1))
sketch2.addConstraint(Sketcher.Constraint("Symmetric", 0, 2, 2, 2, -1, 1))
sketch2.addConstraint(Sketcher.Constraint("Symmetric", 5, 3, 11, 3, -2))
sketch2.addConstraint(Sketcher.Constraint("Symmetric", 37, 3, 51, 3, -2))
sketch2.addConstraint(Sketcher.Constraint("Symmetric", 33, 3, 55, 3, -2))
sketch2.addConstraint(Sketcher.Constraint("Symmetric", 29, 3, 59, 3, -2))
sketch2.addConstraint(Sketcher.Constraint("Perpendicular", 6, 10))
sketch2.addConstraint(Sketcher.Constraint("Parallel", 10, 24))
sketch2.addConstraint(Sketcher.Constraint("Perpendicular", 24, 28))
sketch2.addConstraint(Sketcher.Constraint("Perpendicular", 42, 46))
sketch2.addConstraint(Sketcher.Constraint("Perpendicular", 60, 64))
sketch2.addConstraint(Sketcher.Constraint("Horizontal", 27, 3, 61, 3))
sketch2.addConstraint(Sketcher.Constraint("Equal", 3, 0))
sketch2.addConstraint(Sketcher.Constraint("Equal", 68, 14))
sketch2.addConstraint(Sketcher.Constraint("Equal", 72, 18))
sketch2.addConstraint(Sketcher.Constraint("Equal", 48, 22))
sketch2.addConstraint(Sketcher.Constraint("Equal", 44, 26))
sketch2.addConstraint(Sketcher.Constraint("Equal", 10, 24))
sketch2.addConstraint(Sketcher.Constraint("Radius", 7, Q("3 mm")))
sketch2.addConstraint(Sketcher.Constraint("Radius", 17, Q("2 mm")))
sketch2.addConstraint(Sketcher.Constraint("Diameter", 76, Q("4.3 mm")))
sketch2.addConstraint(Sketcher.Constraint("Radius", 13, Q("0.3 mm")))
sketch2.addConstraint(Sketcher.Constraint("Radius", 15, Q("0.8 mm")))
sketch2.addConstraint(Sketcher.Constraint("DistanceX", 16, 2, 16, 1, Q("4.7 mm")))
sketch2.addConstraint(Sketcher.Constraint("DistanceX", 20, 1, 20, 2, Q("0.7 mm")))
sketch2.addConstraint(Sketcher.Constraint("DistanceX", 17, 3, -1, 1, Q("8 mm")))
sketch2.addConstraint(Sketcher.Constraint("DistanceX", 1, 1, 1, 2, Q("62.398 mm")))
sketch2.addConstraint(Sketcher.Constraint("DistanceY", 7, 3, -1, 1, Q("6.65 mm")))
sketch2.addConstraint(Sketcher.Constraint("Radius", 5, Q("0.832412 mm")))
sketch2.addConstraint(Sketcher.Constraint("DistanceX", 4, 1, 4, 2, Q("2.117588 mm")))
pocket1 = doc.addObject("PartDesign::Pocket", "Pocket")
body.addObject(pocket1)
pocket1.Profile = sketch2
pocket1.Type = "ThroughAll"
pocket1.Midplane = True

doc.recompute()
